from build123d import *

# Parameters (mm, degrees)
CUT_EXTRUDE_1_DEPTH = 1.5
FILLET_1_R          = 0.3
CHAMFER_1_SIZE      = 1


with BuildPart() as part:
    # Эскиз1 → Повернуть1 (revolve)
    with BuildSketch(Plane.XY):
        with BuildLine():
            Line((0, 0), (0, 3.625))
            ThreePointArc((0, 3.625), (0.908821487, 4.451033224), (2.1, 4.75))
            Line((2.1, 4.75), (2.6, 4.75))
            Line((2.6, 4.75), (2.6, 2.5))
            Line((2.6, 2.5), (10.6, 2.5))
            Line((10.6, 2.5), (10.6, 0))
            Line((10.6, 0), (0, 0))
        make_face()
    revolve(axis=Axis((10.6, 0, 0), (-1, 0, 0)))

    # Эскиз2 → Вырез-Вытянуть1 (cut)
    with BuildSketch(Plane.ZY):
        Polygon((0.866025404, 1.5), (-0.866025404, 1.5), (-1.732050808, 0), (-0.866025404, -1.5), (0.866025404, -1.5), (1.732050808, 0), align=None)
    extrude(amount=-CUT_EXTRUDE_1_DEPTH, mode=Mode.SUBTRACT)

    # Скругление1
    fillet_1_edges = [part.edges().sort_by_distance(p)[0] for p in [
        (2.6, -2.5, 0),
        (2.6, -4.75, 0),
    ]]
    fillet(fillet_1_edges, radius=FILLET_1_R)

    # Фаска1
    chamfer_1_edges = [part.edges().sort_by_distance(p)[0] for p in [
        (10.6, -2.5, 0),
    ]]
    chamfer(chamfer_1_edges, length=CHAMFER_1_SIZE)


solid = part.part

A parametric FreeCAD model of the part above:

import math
import FreeCAD as App
import Part
import Sketcher
Q = App.Units.Quantity


def edges_at(feature, points):
    """Names of the edges that pass closest to the given points."""
    edges = feature.Shape.Edges
    near = lambda p: min(range(len(edges)), key=lambda i: edges[i].distToShape(Part.Vertex(*p))[0])
    return sorted({f"Edge{near(p) + 1}" for p in points})


def add_polygon(sketch, points):
    """Adds a closed chain of lines whose ends are joined by coincident constraints."""
    first, n = sketch.GeometryCount, len(points)
    for a, b in zip(points, points[1:] + points[:1]):
        sketch.addGeometry(Part.LineSegment(App.Vector(*a, 0), App.Vector(*b, 0)), False)
    for i in range(n):
        sketch.addConstraint(Sketcher.Constraint("Coincident", first + i, 2, first + (i + 1) % n, 1))

doc = App.newDocument("Part")
body = doc.addObject("PartDesign::Body", "Body")

# Sketch on XY plane
sketch1 = body.newObject("Sketcher::SketchObject", "Sketch")
sketch1.AttachmentSupport = (doc.getObject("XY_Plane"), [""])
sketch1.MapMode = "FlatFace"
sketch1.addGeometry([
    Part.LineSegment(App.Vector(0, 3.6, 0), App.Vector(0, 0, 0)),  # 0
    Part.LineSegment(App.Vector(0, 0, 0), App.Vector(10.6, 0, 0)),  # 1
    Part.LineSegment(App.Vector(10.6, 0, 0), App.Vector(10.6, 2.5, 0)),  # 2
    Part.LineSegment(App.Vector(10.6, 2.5, 0), App.Vector(2.6, 2.5, 0)),  # 3
    Part.LineSegment(App.Vector(2.6, 2.5, 0), App.Vector(2.6, 4.8, 0)),  # 4
    Part.LineSegment(App.Vector(2.6, 4.8, 0), App.Vector(2.1, 4.8, 0)),  # 5
    Part.ArcOfCircle(Part.Circle(App.Vector(2.1, 2.2, 0), App.Vector(0, 0, 1), 2.5), math.radians(90), math.radians(146)),  # 6
], False)
sketch1.addConstraint([
    Sketcher.Constraint("Coincident", 0, 2, 1, 1),
    Sketcher.Constraint("Coincident", 1, 2, 2, 1),
    Sketcher.Constraint("Coincident", 2, 2, 3, 1),
    Sketcher.Constraint("Coincident", 3, 2, 4, 1),
    Sketcher.Constraint("Coincident", 4, 2, 5, 1),
    Sketcher.Constraint("Tangent", 5, 2, 6, 1),
    Sketcher.Constraint("Coincident", 6, 2, 0, 1),
    Sketcher.Constraint("Vertical", 0),
    Sketcher.Constraint("Horizontal", 1),
    Sketcher.Constraint("Vertical", 2),
    Sketcher.Constraint("Horizontal", 3),
    Sketcher.Constraint("Vertical", 4),
    Sketcher.Constraint("Horizontal", 5),
    Sketcher.Constraint("Coincident", 0, 2, -1, 1),
    Sketcher.Constraint("DistanceX", 3, 2, 3, 1, Q("8 mm")),
    Sketcher.Constraint("DistanceX", 1, 1, 1, 2, Q("10.6 mm")),
    Sketcher.Constraint("DistanceX", 5, 2, 5, 1, Q("0.5 mm")),
    Sketcher.Constraint("DistanceY", 2, 1, 2, 2, Q("2.5 mm")),
    Sketcher.Constraint("DistanceY", 4, 1, 4, 2, Q("2.25 mm")),
    Sketcher.Constraint("Radius", 6, Q("2.5225 mm")),
])
revolution = body.newObject("PartDesign::Revolution", "Revolution")
revolution.Profile = sketch1
revolution.ReferenceAxis = (sketch1, ["H_Axis"])
revolution.Angle = 360

# Sketch on YZ plane
sketch2 = body.newObject("Sketcher::SketchObject", "Sketch001")
sketch2.AttachmentSupport = (doc.getObject("YZ_Plane"), [""])
sketch2.MapMode = "FlatFace"
add_polygon(sketch2, [(1.5, 0.9), (1.5, -0.9), (0, -1.7), (-1.5, -0.9), (-1.5, 0.9), (0, 1.7)])  # lines 0-5
sketch2.addConstraint([
    Sketcher.Constraint("Vertical", 0),
    Sketcher.Constraint("Vertical", 3),
    Sketcher.Constraint("Symmetric", 0, 2, 3, 2, -1, 1),
    Sketcher.Constraint("Symmetric", 1, 2, 4, 2, -1, 1),
    Sketcher.Constraint("PointOnObject", 1, 2, -2),
    Sketcher.Constraint("Parallel", 2, 5),
    Sketcher.Constraint("Horizontal", 0, 2, 2, 2),
    Sketcher.Constraint("Angle", 1, Q("-150 deg")),
    Sketcher.Constraint("DistanceX", 2, 2, 0, 2, Q("3 mm")),
    Sketcher.Constraint("DistanceY", 0, 2, 0, 1, Q("1.732051 mm")),
])
pocket1 = body.newObject("PartDesign::Pocket", "Pocket")
pocket1.Profile = sketch2
pocket1.Length = 1.5
pocket1.Reversed = True
doc.recompute()

fillet = body.newObject("PartDesign::Fillet", "Fillet")
fillet.Base = (pocket1, edges_at(pocket1, [(2.6, -2.5, 0), (2.6, -4.75, 0)]))
fillet.Radius = 0.3
doc.recompute()

chamfer = body.newObject("PartDesign::Chamfer", "Chamfer")
chamfer.Base = (fillet, edges_at(fillet, [(10.6, -2.5, 0)]))
chamfer.Size = 1

doc.recompute()
